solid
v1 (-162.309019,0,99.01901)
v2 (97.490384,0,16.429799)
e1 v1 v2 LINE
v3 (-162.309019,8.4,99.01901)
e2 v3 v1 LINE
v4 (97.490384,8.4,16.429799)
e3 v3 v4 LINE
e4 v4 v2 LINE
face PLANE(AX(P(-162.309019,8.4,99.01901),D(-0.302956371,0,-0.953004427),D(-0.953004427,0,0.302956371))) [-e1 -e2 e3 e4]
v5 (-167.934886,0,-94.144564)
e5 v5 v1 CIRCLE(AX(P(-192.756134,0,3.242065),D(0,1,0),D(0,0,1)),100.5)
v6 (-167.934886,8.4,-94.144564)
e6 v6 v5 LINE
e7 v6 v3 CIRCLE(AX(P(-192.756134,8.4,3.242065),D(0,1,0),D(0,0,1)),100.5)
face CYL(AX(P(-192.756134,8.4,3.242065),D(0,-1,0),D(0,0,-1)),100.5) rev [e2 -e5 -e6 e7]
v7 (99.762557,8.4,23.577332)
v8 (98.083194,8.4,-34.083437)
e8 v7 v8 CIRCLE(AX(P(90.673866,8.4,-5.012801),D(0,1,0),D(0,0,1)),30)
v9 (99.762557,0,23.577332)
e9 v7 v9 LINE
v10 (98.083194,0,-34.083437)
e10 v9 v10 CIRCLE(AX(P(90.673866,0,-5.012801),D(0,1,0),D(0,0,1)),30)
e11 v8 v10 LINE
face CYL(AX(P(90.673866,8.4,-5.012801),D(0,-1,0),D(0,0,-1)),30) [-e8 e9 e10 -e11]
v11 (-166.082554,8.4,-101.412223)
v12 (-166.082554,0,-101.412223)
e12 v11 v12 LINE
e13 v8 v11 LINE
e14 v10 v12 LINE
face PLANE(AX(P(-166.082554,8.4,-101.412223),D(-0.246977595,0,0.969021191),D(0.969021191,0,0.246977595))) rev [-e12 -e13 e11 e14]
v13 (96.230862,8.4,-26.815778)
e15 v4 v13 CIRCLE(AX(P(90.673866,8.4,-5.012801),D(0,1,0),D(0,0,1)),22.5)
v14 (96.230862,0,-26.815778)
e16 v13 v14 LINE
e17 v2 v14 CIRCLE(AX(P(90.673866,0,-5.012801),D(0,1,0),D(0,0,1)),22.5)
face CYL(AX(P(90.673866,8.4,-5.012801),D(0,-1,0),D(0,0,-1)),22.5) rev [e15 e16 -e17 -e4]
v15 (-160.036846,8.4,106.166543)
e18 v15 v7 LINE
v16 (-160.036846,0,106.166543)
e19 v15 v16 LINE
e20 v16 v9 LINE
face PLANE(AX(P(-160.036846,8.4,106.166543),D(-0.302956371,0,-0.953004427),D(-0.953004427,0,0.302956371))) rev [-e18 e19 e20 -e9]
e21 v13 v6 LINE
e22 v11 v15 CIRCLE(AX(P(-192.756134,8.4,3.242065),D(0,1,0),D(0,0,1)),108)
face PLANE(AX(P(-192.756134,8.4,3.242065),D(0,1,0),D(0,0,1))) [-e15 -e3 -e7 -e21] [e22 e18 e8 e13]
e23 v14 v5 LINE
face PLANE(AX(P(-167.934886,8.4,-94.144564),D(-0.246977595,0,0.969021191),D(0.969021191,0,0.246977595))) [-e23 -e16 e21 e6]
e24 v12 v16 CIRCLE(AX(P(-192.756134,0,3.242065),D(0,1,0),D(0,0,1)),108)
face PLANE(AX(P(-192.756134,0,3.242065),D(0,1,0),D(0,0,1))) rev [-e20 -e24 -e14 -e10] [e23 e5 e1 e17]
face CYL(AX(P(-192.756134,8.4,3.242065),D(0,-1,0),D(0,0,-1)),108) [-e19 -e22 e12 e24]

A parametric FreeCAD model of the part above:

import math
import FreeCAD as App
import Part
import Sketcher
from FreeCAD import Vector

doc = App.newDocument("Part")
body = doc.addObject("PartDesign::Body", "Body")

# Sketch on XZ plane
sketch1 = doc.addObject("Sketcher::SketchObject", "Sketch")
body.addObject(sketch1)
sketch1.AttachmentSupport = (doc.XZ_Plane, [""])
sketch1.MapMode = "FlatFace"
sketch1.addGeometry([
    Part.LineSegment(Vector(98, -34, 0), Vector(-166, -101, 0)),  # 0
    Part.ArcOfCircle(Part.Circle(Vector(-193, 3, 0), Vector(0, 0, 1), 108), math.radians(72), math.radians(284)),  # 1
    Part.LineSegment(Vector(-160, 106, 0), Vector(100, 24, 0)),  # 2
    Part.ArcOfCircle(Part.Circle(Vector(91, -5, 0), Vector(0, 0, 1), 30), math.radians(-76), math.radians(72)),  # 3
    Part.ArcOfCircle(Part.Circle(Vector(-193, 3, 0), Vector(0, 0, 1), 100), math.radians(72), math.radians(284)),  # 4
    Part.LineSegment(Vector(-168, -94, 0), Vector(96, -27, 0)),  # 5
    Part.ArcOfCircle(Part.Circle(Vector(91, -5, 0), Vector(0, 0, 1), 22), math.radians(-76), math.radians(72)),  # 6
    Part.LineSegment(Vector(97, 16, 0), Vector(-162, 99, 0)),  # 7
], False)
sketch1.addConstraint([
    Sketcher.Constraint("Tangent", 0, 2, 1, 2),
    Sketcher.Constraint("Tangent", 1, 1, 2, 1),
    Sketcher.Constraint("Tangent", 2, 2, 3, 2),
    Sketcher.Constraint("Tangent", 3, 1, 0, 1),
    Sketcher.Constraint("Tangent", 4, 2, 5, 1),
    Sketcher.Constraint("Tangent", 5, 2, 6, 1),
    Sketcher.Constraint("Tangent", 6, 2, 7, 1),
    Sketcher.Constraint("Tangent", 7, 2, 4, 1),
    Sketcher.Constraint("Coincident", 4, 3, 1, 3),
    Sketcher.Constraint("Coincident", 6, 3, 3, 3),
    Sketcher.Constraint("Parallel", 0, 5),
    Sketcher.Constraint("Radius", 1, 108.0),
    Sketcher.Constraint("Radius", 3, 30.0),
    Sketcher.Constraint("Radius", 4, 100.5),
    Sketcher.Constraint("DistanceX", 1, 3, 3, 3, 283.43),
    Sketcher.Constraint("DistanceY", 3, 3, -1, 1, 5.012801),
    Sketcher.Constraint("DistanceY", 3, 1, 1, 3, 37.325502),
    Sketcher.Constraint("DistanceX", -1, 1, 5, 2, 96.230862),
])
pad1 = doc.addObject("PartDesign::Pad", "Pad")
body.addObject(pad1)
pad1.Profile = sketch1
pad1.Length = 8.4
pad1.Reversed = True

doc.recompute()
